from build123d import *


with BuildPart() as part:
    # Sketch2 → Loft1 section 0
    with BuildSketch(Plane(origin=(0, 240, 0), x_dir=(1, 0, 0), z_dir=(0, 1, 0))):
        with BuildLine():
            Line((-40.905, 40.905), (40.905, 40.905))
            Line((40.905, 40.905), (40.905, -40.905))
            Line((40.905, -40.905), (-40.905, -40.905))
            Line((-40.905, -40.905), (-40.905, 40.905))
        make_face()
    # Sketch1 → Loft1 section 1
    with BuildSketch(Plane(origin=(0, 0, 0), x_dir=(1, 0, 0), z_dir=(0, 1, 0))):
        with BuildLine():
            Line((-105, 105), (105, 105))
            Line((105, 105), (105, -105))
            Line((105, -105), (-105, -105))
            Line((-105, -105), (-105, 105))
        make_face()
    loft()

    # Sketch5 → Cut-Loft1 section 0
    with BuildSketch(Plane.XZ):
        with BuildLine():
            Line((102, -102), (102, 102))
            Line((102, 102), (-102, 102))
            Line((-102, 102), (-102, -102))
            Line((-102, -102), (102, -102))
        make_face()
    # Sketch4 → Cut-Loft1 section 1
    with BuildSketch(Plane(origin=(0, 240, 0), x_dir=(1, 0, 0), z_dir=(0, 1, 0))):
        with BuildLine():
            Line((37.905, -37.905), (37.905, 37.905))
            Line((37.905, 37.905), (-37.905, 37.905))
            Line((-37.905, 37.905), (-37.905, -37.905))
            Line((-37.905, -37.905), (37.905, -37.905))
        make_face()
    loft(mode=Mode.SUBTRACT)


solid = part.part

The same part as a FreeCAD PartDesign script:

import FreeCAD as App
import Part
import Sketcher
Q = App.Units.Quantity

doc = App.newDocument("Part")
params = doc.addObject("Spreadsheet::Sheet", "Params")
for row, (alias, value) in enumerate([
    ("sketch1_width", "81.81 mm"),
    ("sketch2_width", "210 mm"),
    ("sketch3_width", "204 mm"),
    ("sketch4_width", "75.81 mm"),
], start=1):
    params.set(f"A{row}", alias)
    params.set(f"B{row}", "=" + value)
    params.setAlias(f"B{row}", alias)

body = doc.addObject("PartDesign::Body", "Body")

# Sketch on XZ plane
sketch1 = body.newObject("Sketcher::SketchObject", "Sketch")
sketch1.AttachmentSupport = (doc.getObject("XZ_Plane"), [""])
sketch1.MapMode = "FlatFace"
sketch1.AttachmentOffset = App.Placement(App.Vector(0, 0, -240), App.Rotation())
sketch1.addGeometry(Part.LineSegment(App.Vector(41, -41, 0), App.Vector(-41, -41, 0)), False)
sketch1.addGeometry(Part.LineSegment(App.Vector(-41, -41, 0), App.Vector(-41, 41, 0)), False)
sketch1.addGeometry(Part.LineSegment(App.Vector(-41, 41, 0), App.Vector(41, 41, 0)), False)
sketch1.addGeometry(Part.LineSegment(App.Vector(41, 41, 0), App.Vector(41, -41, 0)), False)
sketch1.addConstraint(Sketcher.Constraint("Coincident", 0, 2, 1, 1))
sketch1.addConstraint(Sketcher.Constraint("Coincident", 1, 2, 2, 1))
sketch1.addConstraint(Sketcher.Constraint("Coincident", 2, 2, 3, 1))
sketch1.addConstraint(Sketcher.Constraint("Coincident", 3, 2, 0, 1))
sketch1.addConstraint(Sketcher.Constraint("Horizontal", 0))
sketch1.addConstraint(Sketcher.Constraint("Vertical", 1))
sketch1.addConstraint(Sketcher.Constraint("Horizontal", 2))
sketch1.addConstraint(Sketcher.Constraint("Vertical", 3))
sketch1.addConstraint(Sketcher.Constraint("Symmetric", 0, 2, 2, 2, -1, 1))
sketch1.addConstraint(Sketcher.Constraint("Equal", 2, 1))
sketch1.addConstraint(Sketcher.Constraint("DistanceX", 0, 2, 0, 1, Q("81.81 mm")))
sketch1.setExpression("Constraints[10]", "Params.sketch1_width")

# Sketch on XZ plane
sketch2 = body.newObject("Sketcher::SketchObject", "Sketch001")
sketch2.AttachmentSupport = (doc.getObject("XZ_Plane"), [""])
sketch2.MapMode = "FlatFace"
sketch2.addGeometry(Part.LineSegment(App.Vector(105, -105, 0), App.Vector(-105, -105, 0)), False)
sketch2.addGeometry(Part.LineSegment(App.Vector(-105, -105, 0), App.Vector(-105, 105, 0)), False)
sketch2.addGeometry(Part.LineSegment(App.Vector(-105, 105, 0), App.Vector(105, 105, 0)), False)
sketch2.addGeometry(Part.LineSegment(App.Vector(105, 105, 0), App.Vector(105, -105, 0)), False)
sketch2.addConstraint(Sketcher.Constraint("Coincident", 0, 2, 1, 1))
sketch2.addConstraint(Sketcher.Constraint("Coincident", 1, 2, 2, 1))
sketch2.addConstraint(Sketcher.Constraint("Coincident", 2, 2, 3, 1))
sketch2.addConstraint(Sketcher.Constraint("Coincident", 3, 2, 0, 1))
sketch2.addConstraint(Sketcher.Constraint("Horizontal", 0))
sketch2.addConstraint(Sketcher.Constraint("Vertical", 1))
sketch2.addConstraint(Sketcher.Constraint("Horizontal", 2))
sketch2.addConstraint(Sketcher.Constraint("Vertical", 3))
sketch2.addConstraint(Sketcher.Constraint("Symmetric", 0, 2, 2, 2, -1, 1))
sketch2.addConstraint(Sketcher.Constraint("Equal", 2, 1))
sketch2.addConstraint(Sketcher.Constraint("DistanceX", 0, 2, 0, 1, Q("210 mm")))
sketch2.setExpression("Constraints[10]", "Params.sketch2_width")

additiveloft = body.newObject("PartDesign::AdditiveLoft", "AdditiveLoft")
additiveloft.Profile = sketch1
additiveloft.Sections = [sketch2]

# Sketch on XZ plane
sketch3 = body.newObject("Sketcher::SketchObject", "Sketch002")
sketch3.AttachmentSupport = (doc.getObject("XZ_Plane"), [""])
sketch3.MapMode = "FlatFace"
sketch3.addGeometry(Part.LineSegment(App.Vector(102, -102, 0), App.Vector(102, 102, 0)), False)
sketch3.addGeometry(Part.LineSegment(App.Vector(102, 102, 0), App.Vector(-102, 102, 0)), False)
sketch3.addGeometry(Part.LineSegment(App.Vector(-102, 102, 0), App.Vector(-102, -102, 0)), False)
sketch3.addGeometry(Part.LineSegment(App.Vector(-102, -102, 0), App.Vector(102, -102, 0)), False)
sketch3.addConstraint(Sketcher.Constraint("Coincident", 0, 2, 1, 1))
sketch3.addConstraint(Sketcher.Constraint("Coincident", 1, 2, 2, 1))
sketch3.addConstraint(Sketcher.Constraint("Coincident", 2, 2, 3, 1))
sketch3.addConstraint(Sketcher.Constraint("Coincident", 3, 2, 0, 1))
sketch3.addConstraint(Sketcher.Constraint("Vertical", 0))
sketch3.addConstraint(Sketcher.Constraint("Horizontal", 1))
sketch3.addConstraint(Sketcher.Constraint("Vertical", 2))
sketch3.addConstraint(Sketcher.Constraint("Horizontal", 3))
sketch3.addConstraint(Sketcher.Constraint("Symmetric", 0, 2, 2, 2, -1, 1))
sketch3.addConstraint(Sketcher.Constraint("Equal", 3, 0))
sketch3.addConstraint(Sketcher.Constraint("DistanceX", 1, 2, 1, 1, Q("204 mm")))
sketch3.setExpression("Constraints[10]", "Params.sketch3_width")

# Sketch on XZ plane
sketch4 = body.newObject("Sketcher::SketchObject", "Sketch003")
sketch4.AttachmentSupport = (doc.getObject("XZ_Plane"), [""])
sketch4.MapMode = "FlatFace"
sketch4.AttachmentOffset = App.Placement(App.Vector(0, 0, -240), App.Rotation())
sketch4.addGeometry(Part.LineSegment(App.Vector(38, 38, 0), App.Vector(38, -38, 0)), False)
sketch4.addGeometry(Part.LineSegment(App.Vector(38, -38, 0), App.Vector(-38, -38, 0)), False)
sketch4.addGeometry(Part.LineSegment(App.Vector(-38, -38, 0), App.Vector(-38, 38, 0)), False)
sketch4.addGeometry(Part.LineSegment(App.Vector(-38, 38, 0), App.Vector(38, 38, 0)), False)
sketch4.addConstraint(Sketcher.Constraint("Coincident", 0, 2, 1, 1))
sketch4.addConstraint(Sketcher.Constraint("Coincident", 1, 2, 2, 1))
sketch4.addConstraint(Sketcher.Constraint("Coincident", 2, 2, 3, 1))
sketch4.addConstraint(Sketcher.Constraint("Coincident", 3, 2, 0, 1))
sketch4.addConstraint(Sketcher.Constraint("Vertical", 0))
sketch4.addConstraint(Sketcher.Constraint("Horizontal", 1))
sketch4.addConstraint(Sketcher.Constraint("Vertical", 2))
sketch4.addConstraint(Sketcher.Constraint("Horizontal", 3))
sketch4.addConstraint(Sketcher.Constraint("Symmetric", 0, 2, 2, 2, -1, 1))
sketch4.addConstraint(Sketcher.Constraint("Equal", 3, 0))
sketch4.addConstraint(Sketcher.Constraint("DistanceX", 1, 2, 1, 1, Q("75.81 mm")))
sketch4.setExpression("Constraints[10]", "Params.sketch4_width")

subtractiveloft = body.newObject("PartDesign::SubtractiveLoft", "SubtractiveLoft")
subtractiveloft.Profile = sketch3
subtractiveloft.Sections = [sketch4]

doc.recompute()
